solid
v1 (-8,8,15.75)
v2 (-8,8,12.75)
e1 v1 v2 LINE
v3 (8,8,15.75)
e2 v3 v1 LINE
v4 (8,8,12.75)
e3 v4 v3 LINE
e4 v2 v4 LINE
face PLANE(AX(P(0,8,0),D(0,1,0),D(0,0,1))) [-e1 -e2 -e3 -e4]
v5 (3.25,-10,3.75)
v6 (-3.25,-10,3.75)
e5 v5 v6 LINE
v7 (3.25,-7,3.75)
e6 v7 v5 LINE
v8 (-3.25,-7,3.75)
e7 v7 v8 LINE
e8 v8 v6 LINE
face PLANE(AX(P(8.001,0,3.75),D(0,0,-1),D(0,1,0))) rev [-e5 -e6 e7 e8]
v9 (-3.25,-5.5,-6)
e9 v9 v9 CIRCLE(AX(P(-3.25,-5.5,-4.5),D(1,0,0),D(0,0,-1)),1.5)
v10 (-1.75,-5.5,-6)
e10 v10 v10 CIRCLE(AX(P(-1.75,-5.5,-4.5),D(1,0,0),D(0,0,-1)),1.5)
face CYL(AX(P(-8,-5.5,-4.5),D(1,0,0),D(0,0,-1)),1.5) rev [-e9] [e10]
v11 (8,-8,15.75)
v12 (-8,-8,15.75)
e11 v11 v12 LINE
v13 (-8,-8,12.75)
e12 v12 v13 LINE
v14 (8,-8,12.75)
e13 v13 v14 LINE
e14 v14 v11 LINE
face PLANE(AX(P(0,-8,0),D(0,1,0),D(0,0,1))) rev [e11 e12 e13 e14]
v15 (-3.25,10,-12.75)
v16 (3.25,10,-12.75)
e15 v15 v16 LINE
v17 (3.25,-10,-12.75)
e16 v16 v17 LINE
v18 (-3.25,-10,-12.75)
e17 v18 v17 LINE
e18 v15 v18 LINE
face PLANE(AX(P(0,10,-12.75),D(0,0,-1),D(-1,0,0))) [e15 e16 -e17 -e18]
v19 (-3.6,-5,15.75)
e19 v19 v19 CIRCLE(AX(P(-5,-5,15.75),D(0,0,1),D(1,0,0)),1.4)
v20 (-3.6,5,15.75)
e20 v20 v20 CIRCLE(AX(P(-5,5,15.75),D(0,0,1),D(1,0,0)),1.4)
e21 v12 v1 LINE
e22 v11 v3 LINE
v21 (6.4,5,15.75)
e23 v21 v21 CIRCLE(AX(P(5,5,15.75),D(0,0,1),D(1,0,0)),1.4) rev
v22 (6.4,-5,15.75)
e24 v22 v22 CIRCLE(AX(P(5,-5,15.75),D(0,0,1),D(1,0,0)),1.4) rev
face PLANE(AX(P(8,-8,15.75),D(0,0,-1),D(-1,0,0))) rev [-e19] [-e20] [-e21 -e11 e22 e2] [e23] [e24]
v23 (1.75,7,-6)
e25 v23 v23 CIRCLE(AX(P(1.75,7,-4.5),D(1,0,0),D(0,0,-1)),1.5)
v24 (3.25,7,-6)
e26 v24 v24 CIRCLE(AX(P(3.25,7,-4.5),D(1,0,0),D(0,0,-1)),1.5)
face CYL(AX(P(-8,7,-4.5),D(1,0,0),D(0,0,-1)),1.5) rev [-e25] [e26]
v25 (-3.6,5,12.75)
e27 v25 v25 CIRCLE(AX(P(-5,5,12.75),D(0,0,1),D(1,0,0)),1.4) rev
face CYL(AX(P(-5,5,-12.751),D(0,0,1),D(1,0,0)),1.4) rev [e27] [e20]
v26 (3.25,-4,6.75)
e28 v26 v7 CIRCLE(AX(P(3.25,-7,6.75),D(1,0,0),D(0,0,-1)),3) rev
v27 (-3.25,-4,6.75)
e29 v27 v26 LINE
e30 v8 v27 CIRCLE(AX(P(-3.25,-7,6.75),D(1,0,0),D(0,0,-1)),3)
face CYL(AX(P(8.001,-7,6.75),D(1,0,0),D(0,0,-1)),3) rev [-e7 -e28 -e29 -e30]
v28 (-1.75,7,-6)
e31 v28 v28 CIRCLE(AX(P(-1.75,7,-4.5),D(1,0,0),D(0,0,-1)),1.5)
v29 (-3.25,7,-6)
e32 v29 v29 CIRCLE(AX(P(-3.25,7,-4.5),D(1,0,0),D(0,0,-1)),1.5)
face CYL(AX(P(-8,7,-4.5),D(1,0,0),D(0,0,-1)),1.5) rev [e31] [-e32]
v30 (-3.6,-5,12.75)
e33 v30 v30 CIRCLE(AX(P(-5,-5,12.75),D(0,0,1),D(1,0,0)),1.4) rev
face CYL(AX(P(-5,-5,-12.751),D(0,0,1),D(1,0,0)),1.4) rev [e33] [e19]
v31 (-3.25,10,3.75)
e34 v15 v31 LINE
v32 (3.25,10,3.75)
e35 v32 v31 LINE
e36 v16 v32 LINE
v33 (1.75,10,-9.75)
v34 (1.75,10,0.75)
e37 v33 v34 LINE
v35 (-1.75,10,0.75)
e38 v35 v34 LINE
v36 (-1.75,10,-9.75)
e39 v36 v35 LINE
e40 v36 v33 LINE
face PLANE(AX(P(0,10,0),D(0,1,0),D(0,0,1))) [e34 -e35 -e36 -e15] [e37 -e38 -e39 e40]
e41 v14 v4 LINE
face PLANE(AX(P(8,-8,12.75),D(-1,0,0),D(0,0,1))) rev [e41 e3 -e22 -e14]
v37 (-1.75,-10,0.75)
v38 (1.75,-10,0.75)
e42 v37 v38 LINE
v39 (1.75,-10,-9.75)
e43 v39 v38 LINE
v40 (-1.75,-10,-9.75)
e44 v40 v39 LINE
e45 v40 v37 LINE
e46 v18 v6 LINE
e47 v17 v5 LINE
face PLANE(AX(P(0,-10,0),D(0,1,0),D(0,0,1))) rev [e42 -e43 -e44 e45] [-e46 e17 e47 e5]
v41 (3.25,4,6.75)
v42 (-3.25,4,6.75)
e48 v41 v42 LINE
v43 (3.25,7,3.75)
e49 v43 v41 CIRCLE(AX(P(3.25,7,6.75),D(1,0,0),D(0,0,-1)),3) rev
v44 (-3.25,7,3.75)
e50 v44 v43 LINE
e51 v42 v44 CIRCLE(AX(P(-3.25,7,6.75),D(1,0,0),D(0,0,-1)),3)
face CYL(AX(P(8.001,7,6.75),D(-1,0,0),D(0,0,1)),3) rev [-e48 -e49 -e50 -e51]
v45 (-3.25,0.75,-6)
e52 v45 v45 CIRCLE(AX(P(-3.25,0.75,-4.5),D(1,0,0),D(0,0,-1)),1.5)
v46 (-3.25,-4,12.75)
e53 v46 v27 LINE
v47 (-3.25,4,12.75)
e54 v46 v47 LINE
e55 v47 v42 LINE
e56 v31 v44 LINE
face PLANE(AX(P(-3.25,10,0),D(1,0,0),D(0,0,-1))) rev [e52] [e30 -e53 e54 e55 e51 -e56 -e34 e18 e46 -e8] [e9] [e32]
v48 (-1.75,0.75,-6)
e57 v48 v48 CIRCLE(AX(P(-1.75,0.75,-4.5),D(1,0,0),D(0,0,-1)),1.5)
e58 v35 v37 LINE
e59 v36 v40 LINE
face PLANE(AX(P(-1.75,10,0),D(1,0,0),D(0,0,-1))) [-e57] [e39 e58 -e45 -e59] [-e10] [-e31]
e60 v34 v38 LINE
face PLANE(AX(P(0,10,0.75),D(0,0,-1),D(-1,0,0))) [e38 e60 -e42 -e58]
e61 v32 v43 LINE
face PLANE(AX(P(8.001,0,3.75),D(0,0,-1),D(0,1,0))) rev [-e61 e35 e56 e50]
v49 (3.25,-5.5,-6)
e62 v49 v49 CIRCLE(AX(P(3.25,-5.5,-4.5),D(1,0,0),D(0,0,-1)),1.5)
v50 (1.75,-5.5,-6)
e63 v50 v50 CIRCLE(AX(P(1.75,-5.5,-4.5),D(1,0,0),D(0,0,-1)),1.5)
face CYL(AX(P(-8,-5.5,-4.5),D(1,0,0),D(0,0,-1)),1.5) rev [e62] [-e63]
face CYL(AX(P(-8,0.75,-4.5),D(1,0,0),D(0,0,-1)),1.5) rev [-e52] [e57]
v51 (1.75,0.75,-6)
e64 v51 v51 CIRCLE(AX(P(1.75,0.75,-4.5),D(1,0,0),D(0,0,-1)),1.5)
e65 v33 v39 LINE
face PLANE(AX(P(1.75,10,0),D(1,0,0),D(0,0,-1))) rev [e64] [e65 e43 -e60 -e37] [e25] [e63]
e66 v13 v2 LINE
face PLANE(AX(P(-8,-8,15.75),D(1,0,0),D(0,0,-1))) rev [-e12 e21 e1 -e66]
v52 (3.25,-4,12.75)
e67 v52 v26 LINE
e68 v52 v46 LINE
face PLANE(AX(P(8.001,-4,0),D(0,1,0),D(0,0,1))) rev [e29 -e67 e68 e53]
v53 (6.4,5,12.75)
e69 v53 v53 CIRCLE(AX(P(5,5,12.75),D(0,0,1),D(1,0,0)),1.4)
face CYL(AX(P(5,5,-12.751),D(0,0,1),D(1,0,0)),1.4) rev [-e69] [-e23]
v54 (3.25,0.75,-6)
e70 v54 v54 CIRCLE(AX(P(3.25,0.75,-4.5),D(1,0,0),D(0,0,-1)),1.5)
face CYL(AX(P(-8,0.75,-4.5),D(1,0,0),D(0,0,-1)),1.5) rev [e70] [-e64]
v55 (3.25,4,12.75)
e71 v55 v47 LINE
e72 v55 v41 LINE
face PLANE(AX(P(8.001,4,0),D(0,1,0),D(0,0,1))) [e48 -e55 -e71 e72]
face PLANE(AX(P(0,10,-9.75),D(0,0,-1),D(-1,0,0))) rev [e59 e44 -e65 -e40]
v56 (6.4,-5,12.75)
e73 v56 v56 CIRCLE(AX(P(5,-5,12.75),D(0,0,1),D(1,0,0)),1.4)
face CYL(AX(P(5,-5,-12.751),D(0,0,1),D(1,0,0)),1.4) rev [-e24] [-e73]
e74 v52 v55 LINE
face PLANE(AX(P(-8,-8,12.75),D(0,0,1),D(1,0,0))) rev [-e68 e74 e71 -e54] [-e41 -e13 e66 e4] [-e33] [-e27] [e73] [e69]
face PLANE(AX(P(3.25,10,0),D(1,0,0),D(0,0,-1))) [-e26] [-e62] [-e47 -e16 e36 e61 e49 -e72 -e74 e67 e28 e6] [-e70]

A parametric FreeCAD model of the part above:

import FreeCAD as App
import Part
import Sketcher
from FreeCAD import Vector
Q = App.Units.Quantity


def edges_at(feature, points):
    """Names of the edges that pass closest to the given points."""
    edges = feature.Shape.Edges
    near = lambda p: min(range(len(edges)), key=lambda i: edges[i].distToShape(Part.Vertex(*p))[0])
    return sorted({f"Edge{near(p) + 1}" for p in points})


def add_polygon(sketch, points):
    """Adds a closed chain of lines whose ends are joined by coincident constraints."""
    first, n = sketch.GeometryCount, len(points)
    for a, b in zip(points, points[1:] + points[:1]):
        sketch.addGeometry(Part.LineSegment(App.Vector(*a, 0), App.Vector(*b, 0)), False)
    for i in range(n):
        sketch.addConstraint(Sketcher.Constraint("Coincident", first + i, 2, first + (i + 1) % n, 1))

doc = App.newDocument("Part")
params = doc.addObject("Spreadsheet::Sheet", "Params")
for row, (alias, value) in enumerate([
    ("sketch1_width", "6.5 mm"),
    ("sketch1_width2", "3.5 mm"),
    ("sketch1_height", "25.5 mm"),
    ("sketch1_height2", "10.5 mm"),
    ("pad1_length", "20 mm"),
    ("sketch2_width", "16 mm"),
    ("sketch2_height", "3 mm"),
    ("pad2_length", "16 mm"),
    ("sketch3_width", "6 mm"),
    ("sketch3_height", "9 mm"),
    ("sketch4_width", "6 mm"),
    ("sketch4_height", "9 mm"),
    ("sketch5_diameter", "2.8 mm"),
    ("sketch6_diameter", "2.8 mm"),
    ("sketch7_diameter", "2.8 mm"),
    ("sketch8_diameter", "2.8 mm"),
    ("fillet_radius", "3 mm"),
    ("sketch9_diameter", "3 mm"),
], start=1):
    params.set(f"A{row}", alias)
    params.set(f"B{row}", "=" + value)
    params.setAlias(f"B{row}", alias)

body = doc.addObject("PartDesign::Body", "Body")

# Sketch on XZ plane
sketch1 = body.newObject("Sketcher::SketchObject", "Sketch")
sketch1.AttachmentSupport = (doc.getObject("XZ_Plane"), [""])
sketch1.MapMode = "FlatFace"
add_polygon(sketch1, [(-3.25, -12.75), (-3.25, 12.75), (3.25, 12.75), (3.25, -12.75)])  # lines 0-3
add_polygon(sketch1, [(1.75, 0.75), (-1.75, 0.75), (-1.75, -9.75), (1.75, -9.75)])  # lines 4-7
sketch1.addConstraint([
    Sketcher.Constraint("Vertical", 0),
    Sketcher.Constraint("Horizontal", 1),
    Sketcher.Constraint("Vertical", 2),
    Sketcher.Constraint("Horizontal", 3),
    Sketcher.Constraint("Horizontal", 4),
    Sketcher.Constraint("Vertical", 5),
    Sketcher.Constraint("Horizontal", 6),
    Sketcher.Constraint("Vertical", 7),
    Sketcher.Constraint("Symmetric", 0, 2, 2, 2, -1, 1),
    Sketcher.Constraint("DistanceX", 1, 1, 1, 2, Q("6.5 mm")),
    Sketcher.Constraint("DistanceX", 4, 2, 4, 1, Q("3.5 mm")),
    Sketcher.Constraint("DistanceY", 0, 1, 0, 2, Q("25.5 mm")),
    Sketcher.Constraint("DistanceY", 5, 2, 5, 1, Q("10.5 mm")),
    Sketcher.Constraint("DistanceY", 4, 2, 0, 2, Q("12 mm")),
    Sketcher.Constraint("DistanceX", 4, 2, 1, 2, Q("5 mm")),
])
sketch1.setExpression("Constraints[17]", "Params.sketch1_width")
sketch1.setExpression("Constraints[18]", "Params.sketch1_width2")
sketch1.setExpression("Constraints[19]", "Params.sketch1_height")
sketch1.setExpression("Constraints[20]", "Params.sketch1_height2")
pad1 = body.newObject("PartDesign::Pad", "Pad")
pad1.Profile = sketch1
pad1.setExpression("Length", "Params.pad1_length")
pad1.Midplane = True

# Sketch on XZ plane
sketch2 = body.newObject("Sketcher::SketchObject", "Sketch001")
sketch2.AttachmentSupport = (doc.getObject("XZ_Plane"), [""])
sketch2.MapMode = "FlatFace"
add_polygon(sketch2, [(-8, 15.75), (-8, 12.75), (8, 12.75), (8, 15.75)])  # lines 0-3
sketch2.addConstraint([
    Sketcher.Constraint("Vertical", 0),
    Sketcher.Constraint("Horizontal", 1),
    Sketcher.Constraint("Vertical", 2),
    Sketcher.Constraint("Horizontal", 3),
    Sketcher.Constraint("DistanceX", 1, 1, 1, 2, Q("16 mm")),
    Sketcher.Constraint("DistanceY", 0, 2, 0, 1, Q("3 mm")),
    Sketcher.Constraint("DistanceX", 0, 2, -1, 1, Q("8 mm")),
    Sketcher.Constraint("DistanceY", -1, 1, 0, 2, Q("12.75 mm")),
])
sketch2.setExpression("Constraints[8]", "Params.sketch2_width")
sketch2.setExpression("Constraints[9]", "Params.sketch2_height")
pad2 = body.newObject("PartDesign::Pad", "Pad001")
pad2.Profile = sketch2
pad2.setExpression("Length", "Params.pad2_length")
pad2.Midplane = True

# Sketch on YZ plane
sketch3 = body.newObject("Sketcher::SketchObject", "Sketch002")
sketch3.AttachmentSupport = (doc.getObject("YZ_Plane"), [""])
sketch3.MapMode = "FlatFace"
sketch3.AttachmentOffset = App.Placement(Vector(0, 0, -3.25), App.Rotation())
add_polygon(sketch3, [(-4, 12.75), (-4, 3.75), (-10, 3.75), (-10, 12.75)])  # lines 0-3
sketch3.addConstraint([
    Sketcher.Constraint("Vertical", 0),
    Sketcher.Constraint("Horizontal", 1),
    Sketcher.Constraint("Vertical", 2),
    Sketcher.Constraint("Horizontal", 3),
    Sketcher.Constraint("DistanceX", 1, 2, 1, 1, Q("6 mm")),
    Sketcher.Constraint("DistanceY", 0, 2, 0, 1, Q("9 mm")),
    Sketcher.Constraint("DistanceX", 0, 2, -1, 1, Q("4 mm")),
    Sketcher.Constraint("DistanceY", -1, 1, 0, 2, Q("3.75 mm")),
])
sketch3.setExpression("Constraints[8]", "Params.sketch3_width")
sketch3.setExpression("Constraints[9]", "Params.sketch3_height")
pocket1 = body.newObject("PartDesign::Pocket", "Pocket")
pocket1.Profile = sketch3
pocket1.Type = "UpToFirst"
pocket1.Reversed = True

# Sketch on YZ plane
sketch4 = body.newObject("Sketcher::SketchObject", "Sketch003")
sketch4.AttachmentSupport = (doc.getObject("YZ_Plane"), [""])
sketch4.MapMode = "FlatFace"
sketch4.AttachmentOffset = App.Placement(Vector(0, 0, -3.25), App.Rotation())
add_polygon(sketch4, [(10, 12.75), (10, 3.75), (4, 3.75), (4, 12.75)])  # lines 0-3
sketch4.addConstraint([
    Sketcher.Constraint("Vertical", 0),
    Sketcher.Constraint("Horizontal", 1),
    Sketcher.Constraint("Vertical", 2),
    Sketcher.Constraint("Horizontal", 3),
    Sketcher.Constraint("DistanceX", 1, 2, 1, 1, Q("6 mm")),
    Sketcher.Constraint("DistanceY", 0, 2, 0, 1, Q("9 mm")),
    Sketcher.Constraint("DistanceX", -1, 1, 0, 2, Q("10 mm")),
    Sketcher.Constraint("DistanceY", -1, 1, 0, 2, Q("3.75 mm")),
])
sketch4.setExpression("Constraints[8]", "Params.sketch4_width")
sketch4.setExpression("Constraints[9]", "Params.sketch4_height")
pocket2 = body.newObject("PartDesign::Pocket", "Pocket001")
pocket2.Profile = sketch4
pocket2.Type = "UpToFirst"
pocket2.Reversed = True

# Sketch on XY plane
sketch5 = body.newObject("Sketcher::SketchObject", "Sketch004")
sketch5.AttachmentSupport = (doc.getObject("XY_Plane"), [""])
sketch5.MapMode = "FlatFace"
sketch5.AttachmentOffset = App.Placement(Vector(0, 0, 15.75), App.Rotation())
sketch5.addGeometry(Part.Circle(Vector(5, -5, 0), Vector(0, 0, 1), 1.4), False)
sketch5.addConstraint([
    Sketcher.Constraint("Diameter", 0, Q("2.8 mm")),
    Sketcher.Constraint("DistanceX", -1, 1, 0, 3, Q("5 mm")),
    Sketcher.Constraint("DistanceY", 0, 3, -1, 1, Q("5 mm")),
])
sketch5.setExpression("Constraints[0]", "Params.sketch5_diameter")
pocket3 = body.newObject("PartDesign::Pocket", "Pocket002")
pocket3.Profile = sketch5
pocket3.Type = "UpToFirst"

# Sketch on XY plane
sketch6 = body.newObject("Sketcher::SketchObject", "Sketch005")
sketch6.AttachmentSupport = (doc.getObject("XY_Plane"), [""])
sketch6.MapMode = "FlatFace"
sketch6.AttachmentOffset = App.Placement(Vector(0, 0, 15.75), App.Rotation())
sketch6.addGeometry(Part.Circle(Vector(5, 5, 0), Vector(0, 0, 1), 1.4), False)
sketch6.addConstraint([
    Sketcher.Constraint("Diameter", 0, Q("2.8 mm")),
    Sketcher.Constraint("DistanceX", -1, 1, 0, 3, Q("5 mm")),
    Sketcher.Constraint("DistanceY", -1, 1, 0, 3, Q("5 mm")),
])
sketch6.setExpression("Constraints[0]", "Params.sketch6_diameter")
pocket4 = body.newObject("PartDesign::Pocket", "Pocket003")
pocket4.Profile = sketch6
pocket4.Type = "UpToFirst"

# Sketch on XY plane
sketch7 = body.newObject("Sketcher::SketchObject", "Sketch006")
sketch7.AttachmentSupport = (doc.getObject("XY_Plane"), [""])
sketch7.MapMode = "FlatFace"
sketch7.AttachmentOffset = App.Placement(Vector(0, 0, 15.75), App.Rotation())
sketch7.addGeometry(Part.Circle(Vector(-5, 5, 0), Vector(0, 0, 1), 1.4), False)
sketch7.addConstraint([
    Sketcher.Constraint("Diameter", 0, Q("2.8 mm")),
    Sketcher.Constraint("DistanceX", 0, 3, -1, 1, Q("5 mm")),
    Sketcher.Constraint("DistanceY", -1, 1, 0, 3, Q("5 mm")),
])
sketch7.setExpression("Constraints[0]", "Params.sketch7_diameter")
pocket5 = body.newObject("PartDesign::Pocket", "Pocket004")
pocket5.Profile = sketch7
pocket5.Type = "UpToFirst"

# Sketch on XY plane
sketch8 = body.newObject("Sketcher::SketchObject", "Sketch007")
sketch8.AttachmentSupport = (doc.getObject("XY_Plane"), [""])
sketch8.MapMode = "FlatFace"
sketch8.AttachmentOffset = App.Placement(Vector(0, 0, 15.75), App.Rotation())
sketch8.addGeometry(Part.Circle(Vector(-5, -5, 0), Vector(0, 0, 1), 1.4), False)
sketch8.addConstraint([
    Sketcher.Constraint("Diameter", 0, Q("2.8 mm")),
    Sketcher.Constraint("DistanceX", 0, 3, -1, 1, Q("5 mm")),
    Sketcher.Constraint("DistanceY", 0, 3, -1, 1, Q("5 mm")),
])
sketch8.setExpression("Constraints[0]", "Params.sketch8_diameter")
pocket6 = body.newObject("PartDesign::Pocket", "Pocket005")
pocket6.Profile = sketch8
pocket6.Type = "UpToFirst"
doc.recompute()

fillet = body.newObject("PartDesign::Fillet", "Fillet")
fillet.Base = (pocket6, edges_at(pocket6, [(0, -4, 3.75), (0, 4, 3.75)]))
fillet.setExpression("Radius", "Params.fillet_radius")

# Sketch on YZ plane
sketch9 = body.newObject("Sketcher::SketchObject", "Sketch008")
sketch9.AttachmentSupport = (doc.getObject("YZ_Plane"), [""])
sketch9.MapMode = "FlatFace"
sketch9.AttachmentOffset = App.Placement(Vector(0, 0, 3.25), App.Rotation())
sketch9.addGeometry([
    Part.Circle(Vector(7, -4.5, 0), Vector(0, 0, 1), 1.5),
    Part.Circle(Vector(-5.5, -4.5, 0), Vector(0, 0, 1), 1.5),
    Part.Circle(Vector(0.75, -4.5, 0), Vector(0, 0, 1), 1.5),
], False)
sketch9.addConstraint([
    Sketcher.Constraint("Equal", 0, 1),
    Sketcher.Constraint("Equal", 1, 2),
    Sketcher.Constraint("Horizontal", 0, 3, 1, 3),
    Sketcher.Constraint("Horizontal", 1, 3, 2, 3),
    Sketcher.Constraint("Diameter", 0, Q("3 mm")),
    Sketcher.Constraint("DistanceX", -1, 1, 0, 3, Q("7 mm")),
    Sketcher.Constraint("DistanceY", 0, 3, -1, 1, Q("4.5 mm")),
    Sketcher.Constraint("DistanceX", 1, 3, -1, 1, Q("5.5 mm")),
    Sketcher.Constraint("DistanceX", -1, 1, 2, 3, Q("0.75 mm")),
])
sketch9.setExpression("Constraints[4]", "Params.sketch9_diameter")
pocket7 = body.newObject("PartDesign::Pocket", "Pocket006")
pocket7.Profile = sketch9
pocket7.Type = "ThroughAll"

doc.recompute()
